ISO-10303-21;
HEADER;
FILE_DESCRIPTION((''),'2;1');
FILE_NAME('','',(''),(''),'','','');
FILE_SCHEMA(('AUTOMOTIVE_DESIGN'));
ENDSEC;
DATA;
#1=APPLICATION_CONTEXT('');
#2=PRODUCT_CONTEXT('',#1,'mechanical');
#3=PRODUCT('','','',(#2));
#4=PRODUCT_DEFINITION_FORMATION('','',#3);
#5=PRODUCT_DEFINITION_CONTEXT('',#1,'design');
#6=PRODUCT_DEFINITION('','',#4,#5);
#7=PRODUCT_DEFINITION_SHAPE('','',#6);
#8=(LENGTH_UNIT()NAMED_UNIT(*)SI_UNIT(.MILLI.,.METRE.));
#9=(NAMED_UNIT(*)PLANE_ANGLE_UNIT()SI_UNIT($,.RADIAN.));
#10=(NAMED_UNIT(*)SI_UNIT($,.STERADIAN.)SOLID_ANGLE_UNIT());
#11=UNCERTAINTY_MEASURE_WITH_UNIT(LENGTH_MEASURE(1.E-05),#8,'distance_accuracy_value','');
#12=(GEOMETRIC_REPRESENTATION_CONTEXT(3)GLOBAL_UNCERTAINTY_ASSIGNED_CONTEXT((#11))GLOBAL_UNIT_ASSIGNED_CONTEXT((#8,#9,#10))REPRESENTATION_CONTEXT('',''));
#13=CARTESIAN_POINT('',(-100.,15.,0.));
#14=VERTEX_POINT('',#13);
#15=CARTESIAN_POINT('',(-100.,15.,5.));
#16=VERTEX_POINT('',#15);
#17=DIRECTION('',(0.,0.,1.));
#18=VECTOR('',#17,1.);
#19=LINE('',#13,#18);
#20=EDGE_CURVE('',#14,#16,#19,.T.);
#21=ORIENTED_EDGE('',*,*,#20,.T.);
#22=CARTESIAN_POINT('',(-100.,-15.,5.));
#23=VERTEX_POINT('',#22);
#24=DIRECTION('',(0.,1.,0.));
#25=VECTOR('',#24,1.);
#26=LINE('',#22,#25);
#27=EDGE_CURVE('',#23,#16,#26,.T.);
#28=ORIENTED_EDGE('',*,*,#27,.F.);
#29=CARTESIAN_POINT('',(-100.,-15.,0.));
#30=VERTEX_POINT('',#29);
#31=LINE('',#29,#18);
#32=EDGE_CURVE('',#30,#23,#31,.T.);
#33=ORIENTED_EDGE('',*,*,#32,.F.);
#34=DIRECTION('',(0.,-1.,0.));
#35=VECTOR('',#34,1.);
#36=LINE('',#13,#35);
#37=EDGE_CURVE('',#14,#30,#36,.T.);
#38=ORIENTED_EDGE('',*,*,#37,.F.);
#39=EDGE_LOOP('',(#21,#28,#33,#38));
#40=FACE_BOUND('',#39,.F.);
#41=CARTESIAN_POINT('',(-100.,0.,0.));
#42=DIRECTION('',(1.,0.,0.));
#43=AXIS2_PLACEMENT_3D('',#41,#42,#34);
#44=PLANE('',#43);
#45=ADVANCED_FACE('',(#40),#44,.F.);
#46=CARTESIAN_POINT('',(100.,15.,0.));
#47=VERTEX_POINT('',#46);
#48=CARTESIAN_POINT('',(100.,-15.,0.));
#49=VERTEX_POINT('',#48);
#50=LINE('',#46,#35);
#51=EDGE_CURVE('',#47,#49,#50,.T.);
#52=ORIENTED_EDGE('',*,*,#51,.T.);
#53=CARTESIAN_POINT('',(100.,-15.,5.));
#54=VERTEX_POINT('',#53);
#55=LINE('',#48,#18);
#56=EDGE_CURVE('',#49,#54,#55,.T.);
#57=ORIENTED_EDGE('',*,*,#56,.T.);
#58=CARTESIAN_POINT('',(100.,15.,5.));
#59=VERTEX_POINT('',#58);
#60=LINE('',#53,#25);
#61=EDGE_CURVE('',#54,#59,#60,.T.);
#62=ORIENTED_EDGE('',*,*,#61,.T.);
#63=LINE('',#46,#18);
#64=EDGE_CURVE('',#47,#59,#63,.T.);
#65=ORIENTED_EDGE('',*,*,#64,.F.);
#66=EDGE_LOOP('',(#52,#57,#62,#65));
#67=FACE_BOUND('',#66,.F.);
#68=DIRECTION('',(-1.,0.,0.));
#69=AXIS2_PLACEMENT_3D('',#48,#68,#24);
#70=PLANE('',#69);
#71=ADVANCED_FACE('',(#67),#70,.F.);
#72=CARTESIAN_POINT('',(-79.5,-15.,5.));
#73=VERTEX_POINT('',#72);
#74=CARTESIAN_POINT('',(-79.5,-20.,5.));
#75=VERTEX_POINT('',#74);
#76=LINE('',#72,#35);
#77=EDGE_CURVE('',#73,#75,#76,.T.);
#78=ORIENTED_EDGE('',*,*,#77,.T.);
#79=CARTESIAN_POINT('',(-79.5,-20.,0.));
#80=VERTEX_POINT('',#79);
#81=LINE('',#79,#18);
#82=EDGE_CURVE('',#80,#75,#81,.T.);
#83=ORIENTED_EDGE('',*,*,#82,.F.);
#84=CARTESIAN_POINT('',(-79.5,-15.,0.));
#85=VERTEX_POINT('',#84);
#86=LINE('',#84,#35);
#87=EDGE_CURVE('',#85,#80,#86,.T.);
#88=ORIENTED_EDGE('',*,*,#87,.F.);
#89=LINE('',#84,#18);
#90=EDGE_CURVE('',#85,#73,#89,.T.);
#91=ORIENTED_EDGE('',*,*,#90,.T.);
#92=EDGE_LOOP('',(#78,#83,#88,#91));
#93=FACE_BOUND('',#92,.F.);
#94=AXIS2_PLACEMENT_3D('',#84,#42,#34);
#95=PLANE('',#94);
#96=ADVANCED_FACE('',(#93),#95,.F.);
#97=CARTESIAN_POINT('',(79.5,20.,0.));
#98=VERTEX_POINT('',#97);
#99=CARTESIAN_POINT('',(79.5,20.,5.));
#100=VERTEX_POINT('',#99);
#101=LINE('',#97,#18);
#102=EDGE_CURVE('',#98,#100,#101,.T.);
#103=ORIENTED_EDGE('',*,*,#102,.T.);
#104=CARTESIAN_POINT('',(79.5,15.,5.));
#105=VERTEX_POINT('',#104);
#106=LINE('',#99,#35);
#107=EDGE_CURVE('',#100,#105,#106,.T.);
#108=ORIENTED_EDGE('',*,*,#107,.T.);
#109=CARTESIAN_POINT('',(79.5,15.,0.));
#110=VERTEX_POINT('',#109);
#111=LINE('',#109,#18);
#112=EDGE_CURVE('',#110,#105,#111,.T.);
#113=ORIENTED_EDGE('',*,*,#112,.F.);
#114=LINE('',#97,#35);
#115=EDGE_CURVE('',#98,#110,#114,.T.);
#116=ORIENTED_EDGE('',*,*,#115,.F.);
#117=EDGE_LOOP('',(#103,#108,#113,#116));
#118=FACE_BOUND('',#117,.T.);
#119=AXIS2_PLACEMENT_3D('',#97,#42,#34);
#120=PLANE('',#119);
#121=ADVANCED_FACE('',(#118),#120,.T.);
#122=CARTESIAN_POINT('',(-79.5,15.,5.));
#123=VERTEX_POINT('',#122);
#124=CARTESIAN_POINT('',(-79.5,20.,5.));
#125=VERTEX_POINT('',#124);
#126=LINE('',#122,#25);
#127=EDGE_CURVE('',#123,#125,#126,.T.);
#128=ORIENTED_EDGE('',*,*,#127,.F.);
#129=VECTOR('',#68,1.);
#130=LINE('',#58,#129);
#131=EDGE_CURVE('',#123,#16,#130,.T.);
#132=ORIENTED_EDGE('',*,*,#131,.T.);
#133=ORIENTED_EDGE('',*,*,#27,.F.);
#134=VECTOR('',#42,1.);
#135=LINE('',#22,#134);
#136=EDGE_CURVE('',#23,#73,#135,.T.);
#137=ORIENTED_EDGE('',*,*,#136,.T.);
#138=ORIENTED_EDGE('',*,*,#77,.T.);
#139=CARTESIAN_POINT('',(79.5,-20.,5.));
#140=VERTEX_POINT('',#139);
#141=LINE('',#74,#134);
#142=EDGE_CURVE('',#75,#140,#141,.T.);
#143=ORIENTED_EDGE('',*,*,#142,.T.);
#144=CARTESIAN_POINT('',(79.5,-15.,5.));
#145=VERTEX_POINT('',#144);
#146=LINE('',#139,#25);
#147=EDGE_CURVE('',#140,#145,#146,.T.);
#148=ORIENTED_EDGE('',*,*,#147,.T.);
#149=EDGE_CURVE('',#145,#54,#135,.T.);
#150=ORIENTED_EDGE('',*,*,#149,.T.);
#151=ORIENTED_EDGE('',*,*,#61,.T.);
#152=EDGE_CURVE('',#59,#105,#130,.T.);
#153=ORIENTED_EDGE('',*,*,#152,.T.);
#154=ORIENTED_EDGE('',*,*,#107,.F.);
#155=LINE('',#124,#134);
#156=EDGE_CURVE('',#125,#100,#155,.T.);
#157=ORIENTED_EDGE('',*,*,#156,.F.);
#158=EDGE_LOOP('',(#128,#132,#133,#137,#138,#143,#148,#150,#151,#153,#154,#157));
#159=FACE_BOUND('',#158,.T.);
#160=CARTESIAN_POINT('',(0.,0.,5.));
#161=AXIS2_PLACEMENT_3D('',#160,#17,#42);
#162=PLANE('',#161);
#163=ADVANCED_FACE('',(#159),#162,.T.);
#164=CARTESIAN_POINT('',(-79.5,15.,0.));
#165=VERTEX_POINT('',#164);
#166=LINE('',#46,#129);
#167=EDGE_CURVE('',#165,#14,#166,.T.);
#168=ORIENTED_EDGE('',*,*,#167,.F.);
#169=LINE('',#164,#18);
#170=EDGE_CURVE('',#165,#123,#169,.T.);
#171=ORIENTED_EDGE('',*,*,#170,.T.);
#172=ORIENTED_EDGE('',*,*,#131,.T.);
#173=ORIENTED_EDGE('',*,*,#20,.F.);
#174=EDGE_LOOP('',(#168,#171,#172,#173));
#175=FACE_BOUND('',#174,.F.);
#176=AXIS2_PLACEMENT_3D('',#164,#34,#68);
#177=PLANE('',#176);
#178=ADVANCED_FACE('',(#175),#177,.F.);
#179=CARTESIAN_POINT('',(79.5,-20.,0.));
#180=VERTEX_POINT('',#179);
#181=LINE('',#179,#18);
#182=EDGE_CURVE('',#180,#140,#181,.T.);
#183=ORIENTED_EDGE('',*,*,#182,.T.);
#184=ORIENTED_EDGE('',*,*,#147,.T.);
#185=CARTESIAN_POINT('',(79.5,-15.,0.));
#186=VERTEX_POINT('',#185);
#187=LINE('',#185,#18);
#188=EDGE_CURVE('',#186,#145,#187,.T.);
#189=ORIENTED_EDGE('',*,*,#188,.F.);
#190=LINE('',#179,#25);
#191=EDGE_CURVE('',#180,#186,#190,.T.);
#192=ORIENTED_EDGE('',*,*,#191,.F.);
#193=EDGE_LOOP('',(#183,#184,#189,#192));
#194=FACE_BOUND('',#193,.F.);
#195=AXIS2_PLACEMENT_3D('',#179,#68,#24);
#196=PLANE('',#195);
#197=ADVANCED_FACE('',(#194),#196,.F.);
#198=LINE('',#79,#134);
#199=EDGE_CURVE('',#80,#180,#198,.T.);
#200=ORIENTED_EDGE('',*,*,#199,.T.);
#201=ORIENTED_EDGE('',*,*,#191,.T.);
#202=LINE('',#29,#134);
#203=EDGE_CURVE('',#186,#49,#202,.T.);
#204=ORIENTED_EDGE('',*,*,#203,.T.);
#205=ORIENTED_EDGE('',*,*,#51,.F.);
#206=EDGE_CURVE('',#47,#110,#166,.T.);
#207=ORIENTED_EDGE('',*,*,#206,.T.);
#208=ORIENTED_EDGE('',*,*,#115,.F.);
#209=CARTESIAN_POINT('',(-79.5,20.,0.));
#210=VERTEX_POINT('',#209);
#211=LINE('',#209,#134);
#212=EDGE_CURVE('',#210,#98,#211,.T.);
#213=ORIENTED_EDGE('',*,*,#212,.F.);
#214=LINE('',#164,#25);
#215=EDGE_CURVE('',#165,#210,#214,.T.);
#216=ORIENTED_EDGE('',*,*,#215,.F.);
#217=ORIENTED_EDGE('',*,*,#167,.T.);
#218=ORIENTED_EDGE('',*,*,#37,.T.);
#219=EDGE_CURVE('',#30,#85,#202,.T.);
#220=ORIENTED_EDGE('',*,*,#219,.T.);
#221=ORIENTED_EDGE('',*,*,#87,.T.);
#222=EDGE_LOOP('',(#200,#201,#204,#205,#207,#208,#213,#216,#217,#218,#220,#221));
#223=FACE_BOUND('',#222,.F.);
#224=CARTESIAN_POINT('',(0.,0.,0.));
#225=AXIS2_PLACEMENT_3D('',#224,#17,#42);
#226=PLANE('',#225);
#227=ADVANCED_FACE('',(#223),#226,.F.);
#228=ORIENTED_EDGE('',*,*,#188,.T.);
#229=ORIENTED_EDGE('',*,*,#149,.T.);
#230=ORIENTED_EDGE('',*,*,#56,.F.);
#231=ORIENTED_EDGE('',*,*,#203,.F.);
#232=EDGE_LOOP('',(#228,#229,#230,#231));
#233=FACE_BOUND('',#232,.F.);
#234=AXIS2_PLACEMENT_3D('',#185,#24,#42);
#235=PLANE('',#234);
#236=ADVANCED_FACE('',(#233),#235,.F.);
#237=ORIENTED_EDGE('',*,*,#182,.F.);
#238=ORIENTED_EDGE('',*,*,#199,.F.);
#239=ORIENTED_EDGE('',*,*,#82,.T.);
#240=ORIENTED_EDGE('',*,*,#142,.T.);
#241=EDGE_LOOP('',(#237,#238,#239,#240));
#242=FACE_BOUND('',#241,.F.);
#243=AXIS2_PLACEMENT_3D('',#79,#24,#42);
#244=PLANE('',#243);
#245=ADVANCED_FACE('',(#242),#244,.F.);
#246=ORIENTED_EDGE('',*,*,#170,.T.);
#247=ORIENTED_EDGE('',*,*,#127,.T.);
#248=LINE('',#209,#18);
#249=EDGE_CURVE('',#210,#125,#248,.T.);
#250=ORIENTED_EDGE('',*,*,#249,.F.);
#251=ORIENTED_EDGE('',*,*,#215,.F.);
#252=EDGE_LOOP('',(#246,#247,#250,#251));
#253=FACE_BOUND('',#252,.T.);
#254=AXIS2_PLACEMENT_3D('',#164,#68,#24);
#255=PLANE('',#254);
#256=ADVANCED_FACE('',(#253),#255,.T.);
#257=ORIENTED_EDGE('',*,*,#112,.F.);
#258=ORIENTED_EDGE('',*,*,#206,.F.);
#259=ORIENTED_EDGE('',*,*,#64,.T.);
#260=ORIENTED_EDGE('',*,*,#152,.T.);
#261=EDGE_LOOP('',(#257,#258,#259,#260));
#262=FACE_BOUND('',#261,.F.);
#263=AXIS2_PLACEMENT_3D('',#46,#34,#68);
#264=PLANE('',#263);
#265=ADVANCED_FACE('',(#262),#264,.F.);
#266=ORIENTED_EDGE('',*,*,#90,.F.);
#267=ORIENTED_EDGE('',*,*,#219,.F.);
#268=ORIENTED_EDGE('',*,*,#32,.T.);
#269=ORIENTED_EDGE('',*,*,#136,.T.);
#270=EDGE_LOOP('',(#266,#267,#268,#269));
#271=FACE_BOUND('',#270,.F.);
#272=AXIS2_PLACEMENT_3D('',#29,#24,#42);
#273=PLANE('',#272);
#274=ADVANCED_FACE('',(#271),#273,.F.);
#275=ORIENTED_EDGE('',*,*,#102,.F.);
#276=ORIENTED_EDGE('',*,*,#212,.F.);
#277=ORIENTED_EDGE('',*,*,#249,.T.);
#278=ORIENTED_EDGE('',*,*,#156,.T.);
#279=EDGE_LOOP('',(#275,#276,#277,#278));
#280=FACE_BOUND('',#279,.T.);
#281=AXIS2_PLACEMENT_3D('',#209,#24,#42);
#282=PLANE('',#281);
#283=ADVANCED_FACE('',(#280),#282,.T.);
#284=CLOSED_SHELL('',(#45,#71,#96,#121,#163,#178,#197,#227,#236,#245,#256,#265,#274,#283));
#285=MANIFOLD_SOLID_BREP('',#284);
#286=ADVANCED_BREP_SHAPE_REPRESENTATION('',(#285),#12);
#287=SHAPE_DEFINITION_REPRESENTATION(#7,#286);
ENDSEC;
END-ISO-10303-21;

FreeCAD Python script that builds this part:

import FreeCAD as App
import Part
import Sketcher

doc = App.newDocument("Part")
body = doc.addObject("PartDesign::Body", "Body")

# Sketch on XY plane
sketch1 = body.newObject("Sketcher::SketchObject", "Sketch")
sketch1.AttachmentSupport = (doc.getObject("XY_Plane"), [""])
sketch1.MapMode = "FlatFace"
sketch1.addGeometry([
    Part.LineSegment(App.Vector(-100, -15, 0), App.Vector(-80, -15, 0)),  # 0
    Part.LineSegment(App.Vector(-80, -15, 0), App.Vector(-80, -20, 0)),  # 1
    Part.LineSegment(App.Vector(-80, -20, 0), App.Vector(80, -20, 0)),  # 2
    Part.LineSegment(App.Vector(80, -20, 0), App.Vector(80, -15, 0)),  # 3
    Part.LineSegment(App.Vector(80, -15, 0), App.Vector(100, -15, 0)),  # 4
    Part.LineSegment(App.Vector(100, -15, 0), App.Vector(100, 15, 0)),  # 5
    Part.LineSegment(App.Vector(100, 15, 0), App.Vector(80, 15, 0)),  # 6
    Part.LineSegment(App.Vector(80, 15, 0), App.Vector(80, 20, 0)),  # 7
    Part.LineSegment(App.Vector(80, 20, 0), App.Vector(-80, 20, 0)),  # 8
    Part.LineSegment(App.Vector(-80, 20, 0), App.Vector(-80, 15, 0)),  # 9
    Part.LineSegment(App.Vector(-80, 15, 0), App.Vector(-100, 15, 0)),  # 10
    Part.LineSegment(App.Vector(-100, 15, 0), App.Vector(-100, -15, 0)),  # 11
], False)
sketch1.addConstraint([
    Sketcher.Constraint("Coincident", 0, 2, 1, 1),
    Sketcher.Constraint("Coincident", 1, 2, 2, 1),
    Sketcher.Constraint("Coincident", 2, 2, 3, 1),
    Sketcher.Constraint("Coincident", 3, 2, 4, 1),
    Sketcher.Constraint("Coincident", 4, 2, 5, 1),
    Sketcher.Constraint("Coincident", 5, 2, 6, 1),
    Sketcher.Constraint("Coincident", 6, 2, 7, 1),
    Sketcher.Constraint("Coincident", 7, 2, 8, 1),
    Sketcher.Constraint("Coincident", 8, 2, 9, 1),
    Sketcher.Constraint("Coincident", 9, 2, 10, 1),
    Sketcher.Constraint("Coincident", 10, 2, 11, 1),
    Sketcher.Constraint("Coincident", 11, 2, 0, 1),
    Sketcher.Constraint("Horizontal", 0),
    Sketcher.Constraint("Vertical", 1),
    Sketcher.Constraint("Horizontal", 2),
    Sketcher.Constraint("Vertical", 3),
    Sketcher.Constraint("Horizontal", 4),
    Sketcher.Constraint("Vertical", 5),
    Sketcher.Constraint("Horizontal", 6),
    Sketcher.Constraint("Vertical", 7),
    Sketcher.Constraint("Horizontal", 8),
    Sketcher.Constraint("Vertical", 9),
    Sketcher.Constraint("Horizontal", 10),
    Sketcher.Constraint("Vertical", 11),
    Sketcher.Constraint("Symmetric", 0, 2, 6, 2, -1, 1),
    Sketcher.Constraint("Symmetric", 2, 2, 8, 2, -1, 1),
    Sketcher.Constraint("Symmetric", 4, 2, 10, 2, -1, 1),
    Sketcher.Constraint("Symmetric", 0, 2, 3, 2, -2),
    Sketcher.Constraint("DistanceX", 2, 1, 2, 2, 159.0),
    Sketcher.Constraint("DistanceY", 1, 2, 1, 1, 5.0),
    Sketcher.Constraint("DistanceY", 5, 1, 5, 2, 30.0),
    Sketcher.Constraint("DistanceX", 0, 1, 0, 2, 20.5),
])
pad1 = body.newObject("PartDesign::Pad", "Pad")
pad1.Profile = sketch1
pad1.Length = 5

doc.recompute()
